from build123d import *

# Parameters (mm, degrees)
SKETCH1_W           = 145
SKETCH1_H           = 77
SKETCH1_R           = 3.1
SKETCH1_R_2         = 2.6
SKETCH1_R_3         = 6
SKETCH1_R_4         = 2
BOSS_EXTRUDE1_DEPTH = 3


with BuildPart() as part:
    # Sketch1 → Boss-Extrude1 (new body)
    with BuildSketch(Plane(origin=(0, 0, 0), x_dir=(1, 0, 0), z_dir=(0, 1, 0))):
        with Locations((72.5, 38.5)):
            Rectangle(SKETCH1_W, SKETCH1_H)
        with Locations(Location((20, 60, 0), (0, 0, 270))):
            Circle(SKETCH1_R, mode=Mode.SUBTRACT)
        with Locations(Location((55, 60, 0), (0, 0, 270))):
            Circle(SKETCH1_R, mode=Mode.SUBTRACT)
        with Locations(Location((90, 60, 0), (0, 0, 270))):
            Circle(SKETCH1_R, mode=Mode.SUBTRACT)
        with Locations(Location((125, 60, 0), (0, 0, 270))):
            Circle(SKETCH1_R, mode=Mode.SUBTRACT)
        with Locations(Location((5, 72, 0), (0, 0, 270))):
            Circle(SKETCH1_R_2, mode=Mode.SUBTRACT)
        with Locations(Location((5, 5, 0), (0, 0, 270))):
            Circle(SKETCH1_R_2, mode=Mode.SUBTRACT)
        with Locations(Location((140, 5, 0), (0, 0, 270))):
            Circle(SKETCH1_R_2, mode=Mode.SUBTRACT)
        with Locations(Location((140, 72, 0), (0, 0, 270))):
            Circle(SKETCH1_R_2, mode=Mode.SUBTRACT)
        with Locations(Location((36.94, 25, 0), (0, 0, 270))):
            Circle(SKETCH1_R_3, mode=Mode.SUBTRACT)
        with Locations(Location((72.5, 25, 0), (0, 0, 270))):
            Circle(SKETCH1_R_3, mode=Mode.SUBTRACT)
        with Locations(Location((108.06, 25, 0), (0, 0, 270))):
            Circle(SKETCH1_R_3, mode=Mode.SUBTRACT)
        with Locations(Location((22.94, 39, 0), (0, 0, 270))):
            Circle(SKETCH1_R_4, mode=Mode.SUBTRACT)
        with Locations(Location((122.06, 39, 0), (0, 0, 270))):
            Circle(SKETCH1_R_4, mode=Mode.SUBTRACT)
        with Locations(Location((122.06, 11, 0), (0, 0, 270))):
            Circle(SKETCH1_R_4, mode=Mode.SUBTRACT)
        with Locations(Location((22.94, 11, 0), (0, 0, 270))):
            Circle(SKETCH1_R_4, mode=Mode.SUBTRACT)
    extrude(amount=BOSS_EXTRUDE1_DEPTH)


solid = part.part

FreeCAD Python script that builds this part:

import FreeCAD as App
import Part
import Sketcher

doc = App.newDocument("Part")
body = doc.addObject("PartDesign::Body", "Body")

sketch1 = doc.addObject("Sketcher::SketchObject", "Sketch")
body.addObject(sketch1)
sketch1.AttachmentSupport = (doc.XZ_Plane, [""])
sketch1.MapMode = "FlatFace"
sketch1.addGeometry([
    Part.LineSegment(App.Vector(0, -77, 0), App.Vector(0, 0, 0)),
    Part.LineSegment(App.Vector(0, 0, 0), App.Vector(145, 0, 0)),
    Part.LineSegment(App.Vector(145, 0, 0), App.Vector(145, -77, 0)),
    Part.LineSegment(App.Vector(145, -77, 0), App.Vector(0, -77, 0)),
    Part.Circle(App.Vector(5, -5, 0), App.Vector(0, 0, 1), 2.6),
    Part.Circle(App.Vector(22.94, -11, 0), App.Vector(0, 0, 1), 2),
    Part.Circle(App.Vector(36.94, -25, 0), App.Vector(0, 0, 1), 6),
    Part.Circle(App.Vector(122.06, -11, 0), App.Vector(0, 0, 1), 2),
    Part.Circle(App.Vector(140, -5, 0), App.Vector(0, 0, 1), 2.6),
    Part.Circle(App.Vector(72.5, -25, 0), App.Vector(0, 0, 1), 6),
    Part.Circle(App.Vector(108.06, -25, 0), App.Vector(0, 0, 1), 6),
    Part.Circle(App.Vector(22.94, -39, 0), App.Vector(0, 0, 1), 2),
    Part.Circle(App.Vector(20, -60, 0), App.Vector(0, 0, 1), 3.1),
    Part.Circle(App.Vector(5, -72, 0), App.Vector(0, 0, 1), 2.6),
    Part.Circle(App.Vector(55, -60, 0), App.Vector(0, 0, 1), 3.1),
    Part.Circle(App.Vector(122.06, -39, 0), App.Vector(0, 0, 1), 2),
    Part.Circle(App.Vector(90, -60, 0), App.Vector(0, 0, 1), 3.1),
    Part.Circle(App.Vector(125, -60, 0), App.Vector(0, 0, 1), 3.1),
    Part.Circle(App.Vector(140, -72, 0), App.Vector(0, 0, 1), 2.6),
], False)
sketch1.addConstraint([
    Sketcher.Constraint("Coincident", 0, 2, 1, 1),
    Sketcher.Constraint("Coincident", 1, 2, 2, 1),
    Sketcher.Constraint("Coincident", 2, 2, 3, 1),
    Sketcher.Constraint("Coincident", 3, 2, 0, 1),
    Sketcher.Constraint("Vertical", 0),
    Sketcher.Constraint("Horizontal", 1),
    Sketcher.Constraint("Vertical", 2),
    Sketcher.Constraint("Horizontal", 3),
    Sketcher.Constraint("Coincident", 0, 2, -1, 1),
    Sketcher.Constraint("Equal", 5, 7),
    Sketcher.Constraint("Equal", 4, 8),
    Sketcher.Constraint("Equal", 6, 9),
    Sketcher.Constraint("Equal", 9, 10),
    Sketcher.Constraint("Equal", 7, 11),
    Sketcher.Constraint("Equal", 8, 13),
    Sketcher.Constraint("Equal", 12, 14),
    Sketcher.Constraint("Equal", 11, 15),
    Sketcher.Constraint("Equal", 14, 16),
    Sketcher.Constraint("Equal", 16, 17),
    Sketcher.Constraint("Equal", 13, 18),
    Sketcher.Constraint("Horizontal", 5, 3, 7, 3),
    Sketcher.Constraint("Horizontal", 4, 3, 8, 3),
    Sketcher.Constraint("Horizontal", 6, 3, 9, 3),
    Sketcher.Constraint("Horizontal", 9, 3, 10, 3),
    Sketcher.Constraint("Horizontal", 12, 3, 14, 3),
    Sketcher.Constraint("Horizontal", 11, 3, 15, 3),
    Sketcher.Constraint("Horizontal", 14, 3, 16, 3),
    Sketcher.Constraint("Horizontal", 16, 3, 17, 3),
    Sketcher.Constraint("Horizontal", 13, 3, 18, 3),
    Sketcher.Constraint("Vertical", 5, 3, 11, 3),
    Sketcher.Constraint("Vertical", 4, 3, 13, 3),
    Sketcher.Constraint("Vertical", 7, 3, 15, 3),
    Sketcher.Constraint("Vertical", 8, 3, 18, 3),
    Sketcher.Constraint("Diameter", 5, 4.0),
    Sketcher.Constraint("Diameter", 6, 12.0),
    Sketcher.Constraint("Diameter", 4, 5.2),
    Sketcher.Constraint("Diameter", 12, 6.2),
    Sketcher.Constraint("DistanceX", 1, 1, 1, 2, 145.0),
    Sketcher.Constraint("DistanceY", 0, 1, 0, 2, 77.0),
    Sketcher.Constraint("DistanceX", -1, 1, 4, 3, 5.0),
    Sketcher.Constraint("DistanceY", 4, 3, -1, 1, 5.0),
    Sketcher.Constraint("DistanceY", 5, 3, -1, 1, 11.0),
    Sketcher.Constraint("DistanceY", 6, 3, -1, 1, 25.0),
    Sketcher.Constraint("DistanceX", -1, 1, 8, 3, 140.0),
    Sketcher.Constraint("DistanceY", 11, 3, -1, 1, 39.0),
    Sketcher.Constraint("DistanceX", -1, 1, 12, 3, 20.0),
    Sketcher.Constraint("DistanceY", 12, 3, -1, 1, 60.0),
    Sketcher.Constraint("DistanceY", 13, 3, -1, 1, 72.0),
    Sketcher.Constraint("DistanceX", -1, 1, 14, 3, 55.0),
    Sketcher.Constraint("DistanceX", -1, 1, 16, 3, 90.0),
    Sketcher.Constraint("DistanceX", -1, 1, 17, 3, 125.0),
    Sketcher.Constraint("DistanceX", 5, 3, 6, 3, 14.0),
    Sketcher.Constraint("DistanceX", 10, 3, 7, 3, 14.0),
    Sketcher.Constraint("DistanceX", -1, 1, 9, 3, 72.5),
    Sketcher.Constraint("DistanceX", -1, 1, 5, 3, 22.94),
    Sketcher.Constraint("DistanceX", -1, 1, 7, 3, 122.06),
])
pad1 = doc.addObject("PartDesign::Pad", "Pad")
body.addObject(pad1)
pad1.Profile = sketch1
pad1.Length = 3
pad1.Reversed = True

doc.recompute()
